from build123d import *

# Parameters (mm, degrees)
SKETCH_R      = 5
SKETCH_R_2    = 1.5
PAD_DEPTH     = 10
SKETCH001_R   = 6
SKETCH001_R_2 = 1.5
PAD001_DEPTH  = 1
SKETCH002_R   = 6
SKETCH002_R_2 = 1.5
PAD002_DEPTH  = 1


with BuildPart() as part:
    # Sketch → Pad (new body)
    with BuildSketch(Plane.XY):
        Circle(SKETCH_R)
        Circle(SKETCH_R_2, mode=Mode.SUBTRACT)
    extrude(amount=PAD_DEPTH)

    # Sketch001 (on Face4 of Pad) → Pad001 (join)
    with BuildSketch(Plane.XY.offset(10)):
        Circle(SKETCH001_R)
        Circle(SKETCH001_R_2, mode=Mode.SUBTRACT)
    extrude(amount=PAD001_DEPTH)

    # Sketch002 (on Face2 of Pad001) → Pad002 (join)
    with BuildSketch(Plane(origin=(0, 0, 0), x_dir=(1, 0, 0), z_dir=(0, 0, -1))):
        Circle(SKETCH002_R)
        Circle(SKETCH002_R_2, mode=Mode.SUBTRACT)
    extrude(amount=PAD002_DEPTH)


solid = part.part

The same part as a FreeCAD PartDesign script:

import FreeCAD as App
import Part
import Sketcher
Q = App.Units.Quantity

doc = App.newDocument("Part")
body = doc.addObject("PartDesign::Body", "Body")

# Sketch on XY plane
sketch1 = body.newObject("Sketcher::SketchObject", "Sketch")
sketch1.AttachmentSupport = (doc.getObject("XY_Plane"), [""])
sketch1.MapMode = "FlatFace"
sketch1.addGeometry([
    Part.Circle(App.Vector(0, 0, 0), App.Vector(0, 0, 1), 5),
    Part.Circle(App.Vector(0, 0, 0), App.Vector(0, 0, 1), 1.5),
], False)
sketch1.addConstraint([
    Sketcher.Constraint("Coincident", 0, 3, -1, 1),
    Sketcher.Constraint("Coincident", 1, 3, -1, 1),
    Sketcher.Constraint("Diameter", 0, Q("10 mm")),
    Sketcher.Constraint("Diameter", 1, Q("3 mm")),
])
pad1 = body.newObject("PartDesign::Pad", "Pad")
pad1.Profile = sketch1
pad1.Length = 10

# Sketch on XY plane
sketch2 = body.newObject("Sketcher::SketchObject", "Sketch001")
sketch2.AttachmentSupport = (doc.getObject("XY_Plane"), [""])
sketch2.MapMode = "FlatFace"
sketch2.AttachmentOffset = App.Placement(App.Vector(0, 0, 10), App.Rotation())
sketch2.addGeometry([
    Part.Circle(App.Vector(0, 0, 0), App.Vector(0, 0, 1), 6),
    Part.Circle(App.Vector(0, 0, 0), App.Vector(0, 0, 1), 1.5),
], False)
sketch2.addConstraint([
    Sketcher.Constraint("Coincident", 0, 3, -1, 1),
    Sketcher.Constraint("Coincident", 1, 3, -1, 1),
    Sketcher.Constraint("Diameter", 0, Q("12 mm")),
    Sketcher.Constraint("Diameter", 1, Q("3 mm")),
])
pad2 = body.newObject("PartDesign::Pad", "Pad001")
pad2.Profile = sketch2
pad2.Length = 1

# Sketch on XY plane
sketch3 = body.newObject("Sketcher::SketchObject", "Sketch002")
sketch3.AttachmentSupport = (doc.getObject("XY_Plane"), [""])
sketch3.MapMode = "FlatFace"
sketch3.addGeometry([
    Part.Circle(App.Vector(0, 0, 0), App.Vector(0, 0, 1), 6),
    Part.Circle(App.Vector(0, 0, 0), App.Vector(0, 0, 1), 1.5),
], False)
sketch3.addConstraint([
    Sketcher.Constraint("Coincident", 0, 3, -1, 1),
    Sketcher.Constraint("Coincident", 1, 3, -1, 1),
    Sketcher.Constraint("Diameter", 0, Q("12 mm")),
    Sketcher.Constraint("Diameter", 1, Q("3 mm")),
])
pad3 = body.newObject("PartDesign::Pad", "Pad002")
pad3.Profile = sketch3
pad3.Length = 1
pad3.Reversed = True

doc.recompute()
